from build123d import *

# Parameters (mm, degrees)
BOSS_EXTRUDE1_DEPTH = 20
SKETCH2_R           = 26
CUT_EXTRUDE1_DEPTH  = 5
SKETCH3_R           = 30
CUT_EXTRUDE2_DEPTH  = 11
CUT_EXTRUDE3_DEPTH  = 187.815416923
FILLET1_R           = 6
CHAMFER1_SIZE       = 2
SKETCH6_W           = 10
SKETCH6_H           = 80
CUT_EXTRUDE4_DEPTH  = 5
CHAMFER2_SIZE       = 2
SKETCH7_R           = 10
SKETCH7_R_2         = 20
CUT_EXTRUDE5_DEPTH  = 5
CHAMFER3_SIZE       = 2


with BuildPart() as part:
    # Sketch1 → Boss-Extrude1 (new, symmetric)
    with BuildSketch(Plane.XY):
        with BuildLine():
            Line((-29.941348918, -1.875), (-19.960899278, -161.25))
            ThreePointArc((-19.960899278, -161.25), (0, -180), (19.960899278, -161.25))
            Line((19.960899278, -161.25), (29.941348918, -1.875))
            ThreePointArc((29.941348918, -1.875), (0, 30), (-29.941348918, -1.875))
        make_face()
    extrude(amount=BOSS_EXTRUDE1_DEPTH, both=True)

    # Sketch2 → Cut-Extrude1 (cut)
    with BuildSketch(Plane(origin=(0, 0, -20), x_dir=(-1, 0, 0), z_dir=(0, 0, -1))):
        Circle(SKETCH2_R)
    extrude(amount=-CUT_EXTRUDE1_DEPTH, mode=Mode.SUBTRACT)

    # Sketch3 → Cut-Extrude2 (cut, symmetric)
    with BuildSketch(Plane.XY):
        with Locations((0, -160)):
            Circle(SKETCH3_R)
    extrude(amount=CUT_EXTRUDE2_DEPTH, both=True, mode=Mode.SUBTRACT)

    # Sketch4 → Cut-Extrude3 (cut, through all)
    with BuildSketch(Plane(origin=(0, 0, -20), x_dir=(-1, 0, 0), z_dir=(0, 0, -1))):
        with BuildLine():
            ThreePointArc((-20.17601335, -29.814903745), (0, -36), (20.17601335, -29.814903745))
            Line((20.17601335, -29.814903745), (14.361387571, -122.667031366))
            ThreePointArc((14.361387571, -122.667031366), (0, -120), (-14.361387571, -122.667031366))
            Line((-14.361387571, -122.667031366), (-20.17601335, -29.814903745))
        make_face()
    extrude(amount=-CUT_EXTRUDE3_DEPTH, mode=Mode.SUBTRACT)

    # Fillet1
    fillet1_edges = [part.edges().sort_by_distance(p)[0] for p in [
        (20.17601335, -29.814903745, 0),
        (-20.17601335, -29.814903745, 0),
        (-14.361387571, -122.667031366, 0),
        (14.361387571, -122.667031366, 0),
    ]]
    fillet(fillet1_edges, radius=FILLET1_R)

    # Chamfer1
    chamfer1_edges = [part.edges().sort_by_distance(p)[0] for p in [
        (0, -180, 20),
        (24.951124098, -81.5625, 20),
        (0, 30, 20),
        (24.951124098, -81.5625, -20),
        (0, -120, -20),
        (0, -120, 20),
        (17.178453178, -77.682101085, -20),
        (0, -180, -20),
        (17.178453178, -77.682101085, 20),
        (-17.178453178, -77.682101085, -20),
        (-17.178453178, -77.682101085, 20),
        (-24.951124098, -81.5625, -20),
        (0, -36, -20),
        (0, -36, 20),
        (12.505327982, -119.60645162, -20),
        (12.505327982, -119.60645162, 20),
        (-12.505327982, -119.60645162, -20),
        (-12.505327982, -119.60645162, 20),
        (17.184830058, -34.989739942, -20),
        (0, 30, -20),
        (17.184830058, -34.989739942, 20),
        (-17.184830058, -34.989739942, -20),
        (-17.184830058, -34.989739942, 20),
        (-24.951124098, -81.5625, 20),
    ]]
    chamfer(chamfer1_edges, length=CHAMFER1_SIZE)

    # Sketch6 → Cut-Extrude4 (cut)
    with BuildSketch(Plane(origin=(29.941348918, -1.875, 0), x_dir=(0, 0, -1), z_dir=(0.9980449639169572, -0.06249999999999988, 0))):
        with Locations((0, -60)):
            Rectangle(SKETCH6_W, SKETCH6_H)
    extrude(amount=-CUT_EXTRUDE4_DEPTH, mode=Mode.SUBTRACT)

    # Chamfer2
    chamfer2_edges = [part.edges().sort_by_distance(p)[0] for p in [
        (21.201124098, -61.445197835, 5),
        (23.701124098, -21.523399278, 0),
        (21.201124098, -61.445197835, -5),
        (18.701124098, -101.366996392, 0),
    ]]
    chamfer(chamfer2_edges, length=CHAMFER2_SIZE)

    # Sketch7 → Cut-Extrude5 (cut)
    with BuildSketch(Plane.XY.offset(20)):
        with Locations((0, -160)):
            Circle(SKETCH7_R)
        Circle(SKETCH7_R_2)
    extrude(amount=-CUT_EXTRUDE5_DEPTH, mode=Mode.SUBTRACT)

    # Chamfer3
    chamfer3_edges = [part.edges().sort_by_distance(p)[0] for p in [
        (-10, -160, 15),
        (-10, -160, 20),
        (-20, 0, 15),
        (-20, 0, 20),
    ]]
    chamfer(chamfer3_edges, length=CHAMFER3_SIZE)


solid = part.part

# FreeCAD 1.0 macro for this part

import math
import FreeCAD as App
import Part
import Sketcher
Q = App.Units.Quantity


def edges_at(feature, points):
    """Names of the edges that pass closest to the given points."""
    edges = feature.Shape.Edges
    near = lambda p: min(range(len(edges)), key=lambda i: edges[i].distToShape(Part.Vertex(*p))[0])
    return sorted({f"Edge{near(p) + 1}" for p in points})

doc = App.newDocument("Part")
body = doc.addObject("PartDesign::Body", "Body")

# Sketch on XY plane
sketch1 = body.newObject("Sketcher::SketchObject", "Sketch")
sketch1.AttachmentSupport = (doc.getObject("XY_Plane"), [""])
sketch1.MapMode = "FlatFace"
sketch1.addGeometry([
    Part.LineSegment(App.Vector(-30, -2, 0), App.Vector(-20, -161, 0)),
    Part.ArcOfCircle(Part.Circle(App.Vector(0, -160, 0), App.Vector(0, 0, 1), 20), math.radians(-176), math.radians(-4)),
    Part.LineSegment(App.Vector(20, -161, 0), App.Vector(30, -2, 0)),
    Part.ArcOfCircle(Part.Circle(App.Vector(0, 0, 0), App.Vector(0, 0, 1), 30), math.radians(-4), math.radians(184)),
], False)
sketch1.addConstraint([
    Sketcher.Constraint("Tangent", 0, 2, 1, 1),
    Sketcher.Constraint("Tangent", 1, 2, 2, 1),
    Sketcher.Constraint("Tangent", 2, 2, 3, 1),
    Sketcher.Constraint("Tangent", 3, 2, 0, 1),
    Sketcher.Constraint("Coincident", 3, 3, -1, 1),
    Sketcher.Constraint("PointOnObject", 1, 3, -2),
    Sketcher.Constraint("Radius", 1, Q("20 mm")),
    Sketcher.Constraint("Radius", 3, Q("30 mm")),
    Sketcher.Constraint("DistanceY", 1, 3, -1, 1, Q("160 mm")),
])
pad1 = body.newObject("PartDesign::Pad", "Pad")
pad1.Profile = sketch1
pad1.Length = 40
pad1.Midplane = True

# Sketch on XY plane
sketch2 = body.newObject("Sketcher::SketchObject", "Sketch001")
sketch2.AttachmentSupport = (doc.getObject("XY_Plane"), [""])
sketch2.MapMode = "FlatFace"
sketch2.AttachmentOffset = App.Placement(App.Vector(0, 0, -20), App.Rotation())
sketch2.addGeometry(Part.Circle(App.Vector(0, 0, 0), App.Vector(0, 0, 1), 26), False)
sketch2.addConstraint([
    Sketcher.Constraint("Coincident", 0, 3, -1, 1),
    Sketcher.Constraint("Diameter", 0, Q("52 mm")),
])
pocket1 = body.newObject("PartDesign::Pocket", "Pocket")
pocket1.Profile = sketch2
pocket1.Length = 5
pocket1.Reversed = True

# Sketch on XY plane
sketch3 = body.newObject("Sketcher::SketchObject", "Sketch002")
sketch3.AttachmentSupport = (doc.getObject("XY_Plane"), [""])
sketch3.MapMode = "FlatFace"
sketch3.addGeometry(Part.Circle(App.Vector(0, -160, 0), App.Vector(0, 0, 1), 30), False)
sketch3.addConstraint([
    Sketcher.Constraint("PointOnObject", 0, 3, -2),
    Sketcher.Constraint("Diameter", 0, Q("60 mm")),
    Sketcher.Constraint("DistanceY", 0, 3, -1, 1, Q("160 mm")),
])
pocket2 = body.newObject("PartDesign::Pocket", "Pocket001")
pocket2.Profile = sketch3
pocket2.Length = 22
pocket2.Midplane = True

# Sketch on XY plane
sketch4 = body.newObject("Sketcher::SketchObject", "Sketch003")
sketch4.AttachmentSupport = (doc.getObject("XY_Plane"), [""])
sketch4.MapMode = "FlatFace"
sketch4.AttachmentOffset = App.Placement(App.Vector(0, 0, -20), App.Rotation())
sketch4.addGeometry([
    Part.ArcOfCircle(Part.Circle(App.Vector(0, 0, 0), App.Vector(0, 0, 1), 36), math.radians(-124), math.radians(-56)),
    Part.LineSegment(App.Vector(20, -30, 0), App.Vector(14, -123, 0)),
    Part.ArcOfCircle(Part.Circle(App.Vector(0, -160, 0), App.Vector(0, 0, 1), 40), math.radians(69), math.radians(111)),
    Part.LineSegment(App.Vector(-14, -123, 0), App.Vector(-20, -30, 0)),
], False)
sketch4.addConstraint([
    Sketcher.Constraint("Coincident", 0, 2, 1, 1),
    Sketcher.Constraint("Coincident", 1, 2, 2, 1),
    Sketcher.Constraint("Coincident", 2, 2, 3, 1),
    Sketcher.Constraint("Coincident", 3, 2, 0, 1),
    Sketcher.Constraint("Coincident", 0, 3, -1, 1),
    Sketcher.Constraint("Symmetric", 1, 2, 2, 2, -2),
    Sketcher.Constraint("Horizontal", 0, 2, 3, 2),
    Sketcher.Constraint("Radius", 0, Q("36 mm")),
    Sketcher.Constraint("Radius", 2, Q("40 mm")),
    Sketcher.Constraint("DistanceY", 2, 3, -1, 1, Q("160 mm")),
    Sketcher.Constraint("DistanceX", 2, 2, 0, 2, Q("34.537401 mm")),
    Sketcher.Constraint("DistanceY", 1, 2, -1, 1, Q("122.667031 mm")),
])
pocket3 = body.newObject("PartDesign::Pocket", "Pocket002")
pocket3.Profile = sketch4
pocket3.Type = "ThroughAll"
pocket3.Reversed = True
doc.recompute()

fillet = body.newObject("PartDesign::Fillet", "Fillet")
fillet.Base = (pocket3, edges_at(pocket3, [
    (20.176, -29.815, 0),
    (-20.176, -29.815, 0),
    (-14.361, -122.667, 0),
    (14.361, -122.667, 0),
]))
fillet.Radius = 6
doc.recompute()

chamfer = body.newObject("PartDesign::Chamfer", "Chamfer")
chamfer.Base = (fillet, edges_at(fillet, [
    (0, -180, 20),
    (24.951, -81.562, 20),
    (0, 30, 20),
    (24.951, -81.562, -20),
    (0, -120, -20),
    (0, -120, 20),
    (17.178, -77.682, -20),
    (0, -180, -20),
    (17.178, -77.682, 20),
    (-17.178, -77.682, -20),
    (-17.178, -77.682, 20),
    (-24.951, -81.562, -20),
    (0, -36, -20),
    (0, -36, 20),
    (12.505, -119.606, -20),
    (12.505, -119.606, 20),
    (-12.505, -119.606, -20),
    (-12.505, -119.606, 20),
    (17.185, -34.99, -20),
    (0, 30, -20),
    (17.185, -34.99, 20),
    (-17.185, -34.99, -20),
    (-17.185, -34.99, 20),
    (-24.951, -81.562, 20),
]))
chamfer.Size = 2

# Sketch on an angled plane
sketch5 = body.newObject("Sketcher::SketchObject", "Sketch004")
sketch5.Placement = App.Placement(App.Vector(29.941349, -1.875, 0), App.Rotation(App.Vector(0, 0, -1), App.Vector(0.0625, 0.998044964, 0), App.Vector(0.998044964, -0.0625, 0), "ZXY"))
sketch5.addGeometry([
    Part.LineSegment(App.Vector(-5, -20, 0), App.Vector(-5, -100, 0)),
    Part.LineSegment(App.Vector(-5, -100, 0), App.Vector(5, -100, 0)),
    Part.LineSegment(App.Vector(5, -100, 0), App.Vector(5, -20, 0)),
    Part.LineSegment(App.Vector(5, -20, 0), App.Vector(-5, -20, 0)),
], False)
sketch5.addConstraint([
    Sketcher.Constraint("Coincident", 0, 2, 1, 1),
    Sketcher.Constraint("Coincident", 1, 2, 2, 1),
    Sketcher.Constraint("Coincident", 2, 2, 3, 1),
    Sketcher.Constraint("Coincident", 3, 2, 0, 1),
    Sketcher.Constraint("Vertical", 0),
    Sketcher.Constraint("Horizontal", 1),
    Sketcher.Constraint("Vertical", 2),
    Sketcher.Constraint("Horizontal", 3),
    Sketcher.Constraint("DistanceX", 1, 1, 1, 2, Q("10 mm")),
    Sketcher.Constraint("DistanceY", 0, 2, 0, 1, Q("80 mm")),
    Sketcher.Constraint("DistanceX", 0, 2, -1, 1, Q("5 mm")),
    Sketcher.Constraint("DistanceY", 0, 2, -1, 1, Q("100 mm")),
])
pocket4 = body.newObject("PartDesign::Pocket", "Pocket003")
pocket4.Profile = sketch5
pocket4.Length = 5
doc.recompute()

chamfer2 = body.newObject("PartDesign::Chamfer", "Chamfer001")
chamfer2.Base = (pocket4, edges_at(pocket4, [
    (21.201, -61.445, 5),
    (23.701, -21.523, 0),
    (21.201, -61.445, -5),
    (18.701, -101.367, 0),
]))
chamfer2.Size = 2

# Sketch on XY plane
sketch6 = body.newObject("Sketcher::SketchObject", "Sketch005")
sketch6.AttachmentSupport = (doc.getObject("XY_Plane"), [""])
sketch6.MapMode = "FlatFace"
sketch6.AttachmentOffset = App.Placement(App.Vector(0, 0, 20), App.Rotation())
sketch6.addGeometry([
    Part.Circle(App.Vector(0, -160, 0), App.Vector(0, 0, 1), 10),
    Part.Circle(App.Vector(0, 0, 0), App.Vector(0, 0, 1), 20),
], False)
sketch6.addConstraint([
    Sketcher.Constraint("Coincident", 1, 3, -1, 1),
    Sketcher.Constraint("PointOnObject", 0, 3, -2),
    Sketcher.Constraint("Diameter", 0, Q("20 mm")),
    Sketcher.Constraint("Diameter", 1, Q("40 mm")),
    Sketcher.Constraint("DistanceY", 0, 3, -1, 1, Q("160 mm")),
])
pocket5 = body.newObject("PartDesign::Pocket", "Pocket004")
pocket5.Profile = sketch6
pocket5.Length = 5
doc.recompute()

chamfer3 = body.newObject("PartDesign::Chamfer", "Chamfer002")
chamfer3.Base = (pocket5, edges_at(pocket5, [
    (-10, -160, 15),
    (-10, -160, 20),
    (-20, 0, 15),
    (-20, 0, 20),
]))
chamfer3.Size = 2

doc.recompute()
